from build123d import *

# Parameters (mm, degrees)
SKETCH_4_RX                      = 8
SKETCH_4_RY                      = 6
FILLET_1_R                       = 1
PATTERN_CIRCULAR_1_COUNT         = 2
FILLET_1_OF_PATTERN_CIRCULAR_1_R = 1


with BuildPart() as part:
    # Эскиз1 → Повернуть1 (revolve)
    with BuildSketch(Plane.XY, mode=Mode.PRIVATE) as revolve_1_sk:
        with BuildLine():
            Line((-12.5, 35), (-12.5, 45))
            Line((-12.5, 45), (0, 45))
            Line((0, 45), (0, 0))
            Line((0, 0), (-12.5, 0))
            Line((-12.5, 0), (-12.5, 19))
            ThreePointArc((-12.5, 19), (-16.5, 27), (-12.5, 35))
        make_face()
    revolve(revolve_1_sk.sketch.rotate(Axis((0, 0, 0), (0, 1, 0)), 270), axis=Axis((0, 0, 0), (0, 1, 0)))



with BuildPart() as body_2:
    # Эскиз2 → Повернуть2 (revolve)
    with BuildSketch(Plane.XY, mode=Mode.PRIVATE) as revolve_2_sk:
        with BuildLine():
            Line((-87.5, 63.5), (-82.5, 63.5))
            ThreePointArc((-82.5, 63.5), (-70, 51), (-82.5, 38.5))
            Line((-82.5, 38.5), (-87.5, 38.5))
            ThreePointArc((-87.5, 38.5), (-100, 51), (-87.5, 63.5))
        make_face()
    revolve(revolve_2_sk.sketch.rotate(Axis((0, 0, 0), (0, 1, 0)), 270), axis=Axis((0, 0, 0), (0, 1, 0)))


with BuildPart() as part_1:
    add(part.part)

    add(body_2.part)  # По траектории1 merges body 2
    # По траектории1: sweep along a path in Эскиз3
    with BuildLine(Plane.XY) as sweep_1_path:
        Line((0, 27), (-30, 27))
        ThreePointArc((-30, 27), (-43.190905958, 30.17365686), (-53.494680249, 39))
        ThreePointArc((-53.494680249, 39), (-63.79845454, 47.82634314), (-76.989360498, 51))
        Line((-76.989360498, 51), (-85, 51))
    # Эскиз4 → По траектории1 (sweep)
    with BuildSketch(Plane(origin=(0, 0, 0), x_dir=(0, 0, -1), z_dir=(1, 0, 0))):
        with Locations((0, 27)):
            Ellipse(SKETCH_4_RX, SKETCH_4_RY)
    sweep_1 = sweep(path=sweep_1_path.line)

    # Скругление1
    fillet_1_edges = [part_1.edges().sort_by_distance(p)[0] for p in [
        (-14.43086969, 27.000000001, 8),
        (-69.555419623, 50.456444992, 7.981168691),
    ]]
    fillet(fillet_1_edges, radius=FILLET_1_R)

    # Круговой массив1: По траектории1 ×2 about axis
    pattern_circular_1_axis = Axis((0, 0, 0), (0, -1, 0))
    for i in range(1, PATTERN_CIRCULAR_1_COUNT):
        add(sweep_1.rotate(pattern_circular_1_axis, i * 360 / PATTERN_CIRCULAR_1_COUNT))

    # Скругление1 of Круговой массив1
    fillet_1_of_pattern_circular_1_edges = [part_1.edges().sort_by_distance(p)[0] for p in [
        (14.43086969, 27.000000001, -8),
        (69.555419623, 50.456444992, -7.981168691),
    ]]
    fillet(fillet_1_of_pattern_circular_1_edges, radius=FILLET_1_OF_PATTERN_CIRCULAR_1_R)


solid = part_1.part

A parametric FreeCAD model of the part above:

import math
import FreeCAD as App
import Part
import Sketcher
from FreeCAD import Vector


def edges_at(feature, points):
    """Names of the edges that pass closest to the given points."""
    edges = feature.Shape.Edges
    near = lambda p: min(range(len(edges)), key=lambda i: edges[i].distToShape(Part.Vertex(*p))[0])
    return sorted({f"Edge{near(p) + 1}" for p in points})

doc = App.newDocument("Part")
body = doc.addObject("PartDesign::Body", "Body")

sketch1 = doc.addObject("Sketcher::SketchObject", "Sketch")
body.addObject(sketch1)
sketch1.AttachmentSupport = (doc.XY_Plane, [""])
sketch1.MapMode = "FlatFace"
sketch1.addGeometry(Part.LineSegment(Vector(-12, 45, 0), Vector(-12, 35, 0)), False)
sketch1.addGeometry(Part.ArcOfCircle(Part.Circle(Vector(-6, 27, 0), Vector(0, 0, 1), 10), math.radians(127), math.radians(233)), False)
sketch1.addGeometry(Part.LineSegment(Vector(-12, 19, 0), Vector(-12, 0, 0)), False)
sketch1.addGeometry(Part.LineSegment(Vector(-12, 0, 0), Vector(0, 0, 0)), False)
sketch1.addGeometry(Part.LineSegment(Vector(0, 0, 0), Vector(0, 45, 0)), False)
sketch1.addGeometry(Part.LineSegment(Vector(0, 45, 0), Vector(-12, 45, 0)), False)
sketch1.addConstraint(Sketcher.Constraint("Coincident", 0, 2, 1, 1))
sketch1.addConstraint(Sketcher.Constraint("Coincident", 1, 2, 2, 1))
sketch1.addConstraint(Sketcher.Constraint("Coincident", 2, 2, 3, 1))
sketch1.addConstraint(Sketcher.Constraint("Coincident", 3, 2, 4, 1))
sketch1.addConstraint(Sketcher.Constraint("Coincident", 4, 2, 5, 1))
sketch1.addConstraint(Sketcher.Constraint("Coincident", 5, 2, 0, 1))
sketch1.addConstraint(Sketcher.Constraint("Vertical", 0))
sketch1.addConstraint(Sketcher.Constraint("Vertical", 2))
sketch1.addConstraint(Sketcher.Constraint("Horizontal", 3))
sketch1.addConstraint(Sketcher.Constraint("Vertical", 4))
sketch1.addConstraint(Sketcher.Constraint("Horizontal", 5))
sketch1.addConstraint(Sketcher.Constraint("Coincident", 3, 2, -1, 1))
sketch1.addConstraint(Sketcher.Constraint("Vertical", 0, 2, 1, 2))
sketch1.addConstraint(Sketcher.Constraint("Radius", 1, 10.0))
sketch1.addConstraint(Sketcher.Constraint("DistanceY", 0, 2, 0, 1, 10.0))
sketch1.addConstraint(Sketcher.Constraint("DistanceY", 2, 2, 2, 1, 19.0))
sketch1.addConstraint(Sketcher.Constraint("DistanceY", 4, 1, 4, 2, 45.0))
sketch1.addConstraint(Sketcher.Constraint("DistanceX", 3, 1, 3, 2, 12.5))
revolution = doc.addObject("PartDesign::Revolution", "Revolution")
body.addObject(revolution)
revolution.Profile = sketch1
revolution.ReferenceAxis = (sketch1, ["V_Axis"])
revolution.Angle = 360
body2 = doc.addObject("PartDesign::Body", "Body001")

sketch2 = doc.addObject("Sketcher::SketchObject", "Sketch001")
body2.addObject(sketch2)
sketch2.AttachmentSupport = (doc.getObject("XY_Plane001"), [""])
sketch2.MapMode = "FlatFace"
sketch2.addGeometry(Part.LineSegment(Vector(-82, 64, 0), Vector(-88, 64, 0)), False)
sketch2.addGeometry(Part.ArcOfCircle(Part.Circle(Vector(-88, 51, 0), Vector(0, 0, 1), 12), math.radians(90), math.radians(270)), False)
sketch2.addGeometry(Part.LineSegment(Vector(-88, 38, 0), Vector(-82, 38, 0)), False)
sketch2.addGeometry(Part.ArcOfCircle(Part.Circle(Vector(-82, 51, 0), Vector(0, 0, 1), 12), math.radians(-90), math.radians(90)), False)
sketch2.addConstraint(Sketcher.Constraint("Tangent", 0, 2, 1, 1))
sketch2.addConstraint(Sketcher.Constraint("Tangent", 1, 2, 2, 1))
sketch2.addConstraint(Sketcher.Constraint("Tangent", 2, 2, 3, 1))
sketch2.addConstraint(Sketcher.Constraint("Tangent", 3, 2, 0, 1))
sketch2.addConstraint(Sketcher.Constraint("Horizontal", 0))
sketch2.addConstraint(Sketcher.Constraint("Horizontal", 2))
sketch2.addConstraint(Sketcher.Constraint("Radius", 1, 12.5))
sketch2.addConstraint(Sketcher.Constraint("DistanceX", 0, 2, 0, 1, 5.0))
sketch2.addConstraint(Sketcher.Constraint("DistanceY", -1, 1, 1, 3, 51.0))
sketch2.addConstraint(Sketcher.Constraint("DistanceX", 1, 3, -1, 1, 87.5))
revolution2 = doc.addObject("PartDesign::Revolution", "Revolution001")
body2.addObject(revolution2)
revolution2.Profile = sketch2
revolution2.ReferenceAxis = (sketch2, ["V_Axis"])
revolution2.Angle = 360
body.AllowCompound = True
doc.recompute()

boolean = doc.addObject("PartDesign::Boolean", "Boolean")
body.addObject(boolean)
boolean.Type = "Fuse"
boolean.addObjects([body2])

sketch3 = doc.addObject("Sketcher::SketchObject", "Sketch002")
body.addObject(sketch3)
sketch3.AttachmentSupport = (doc.YZ_Plane, [""])
sketch3.MapMode = "FlatFace"
sketch3.addGeometry(Part.Ellipse(Vector(27, -8, 0), Vector(33, 0, 0), Vector(27, 0, 0)), False)
sketch3.addConstraint(Sketcher.Constraint("Block", 0))

sketch4 = doc.addObject("Sketcher::SketchObject", "Sketch003")
body.addObject(sketch4)
sketch4.AttachmentSupport = (doc.XY_Plane, [""])
sketch4.MapMode = "FlatFace"
sketch4.addGeometry(Part.LineSegment(Vector(0, 27, 0), Vector(-30, 27, 0)), False)
sketch4.addGeometry(Part.ArcOfCircle(Part.Circle(Vector(-30, 56, 0), Vector(0, 0, 1), 29), math.radians(-144), math.radians(-90)), False)
sketch4.addGeometry(Part.ArcOfCircle(Part.Circle(Vector(-77, 22, 0), Vector(0, 0, 1), 29), math.radians(36), math.radians(90)), False)
sketch4.addGeometry(Part.LineSegment(Vector(-77, 51, 0), Vector(-85, 51, 0)), False)
sketch4.addConstraint(Sketcher.Constraint("Tangent", 0, 2, 1, 2))
sketch4.addConstraint(Sketcher.Constraint("Tangent", 1, 1, 2, 1))
sketch4.addConstraint(Sketcher.Constraint("Tangent", 2, 2, 3, 1))
sketch4.addConstraint(Sketcher.Constraint("Horizontal", 0))
sketch4.addConstraint(Sketcher.Constraint("Horizontal", 3))
sketch4.addConstraint(Sketcher.Constraint("Equal", 1, 2))
sketch4.addConstraint(Sketcher.Constraint("PointOnObject", 0, 1, -2))
sketch4.addConstraint(Sketcher.Constraint("Radius", 1, 29.0))
sketch4.addConstraint(Sketcher.Constraint("DistanceX", 0, 2, 0, 1, 30.0))
sketch4.addConstraint(Sketcher.Constraint("DistanceY", -1, 1, 1, 3, 56.0))
sketch4.addConstraint(Sketcher.Constraint("DistanceY", -1, 1, 2, 3, 22.0))
sketch4.addConstraint(Sketcher.Constraint("DistanceX", 3, 2, -1, 1, 85.0))
doc.recompute()

additivepipe = doc.addObject("PartDesign::AdditivePipe", "AdditivePipe")
body.addObject(additivepipe)
additivepipe.Profile = sketch3
additivepipe.Spine = (sketch4, ["Edge1", "Edge2", "Edge3", "Edge4"])
doc.recompute()

fillet = doc.addObject("PartDesign::Fillet", "Fillet")
body.addObject(fillet)
fillet.Base = (additivepipe, edges_at(additivepipe, [(-14.431, 27, 8), (-69.555, 50.456, 7.981)]))
fillet.Radius = 1
doc.recompute()

polarpattern = doc.addObject("PartDesign::PolarPattern", "PolarPattern")
body.addObject(polarpattern)
polarpattern.Originals = [additivepipe]
polarpattern.Axis = (doc.Y_Axis, [""])
polarpattern.Angle = 360
polarpattern.Occurrences = 2
body.Tip = polarpattern
doc.recompute()

fillet2 = doc.addObject("PartDesign::Fillet", "Fillet001")
body.addObject(fillet2)
fillet2.Base = (polarpattern, edges_at(polarpattern, [(14.431, 27, -8), (69.555, 50.456, -7.981)]))
fillet2.Radius = 1

doc.recompute()
